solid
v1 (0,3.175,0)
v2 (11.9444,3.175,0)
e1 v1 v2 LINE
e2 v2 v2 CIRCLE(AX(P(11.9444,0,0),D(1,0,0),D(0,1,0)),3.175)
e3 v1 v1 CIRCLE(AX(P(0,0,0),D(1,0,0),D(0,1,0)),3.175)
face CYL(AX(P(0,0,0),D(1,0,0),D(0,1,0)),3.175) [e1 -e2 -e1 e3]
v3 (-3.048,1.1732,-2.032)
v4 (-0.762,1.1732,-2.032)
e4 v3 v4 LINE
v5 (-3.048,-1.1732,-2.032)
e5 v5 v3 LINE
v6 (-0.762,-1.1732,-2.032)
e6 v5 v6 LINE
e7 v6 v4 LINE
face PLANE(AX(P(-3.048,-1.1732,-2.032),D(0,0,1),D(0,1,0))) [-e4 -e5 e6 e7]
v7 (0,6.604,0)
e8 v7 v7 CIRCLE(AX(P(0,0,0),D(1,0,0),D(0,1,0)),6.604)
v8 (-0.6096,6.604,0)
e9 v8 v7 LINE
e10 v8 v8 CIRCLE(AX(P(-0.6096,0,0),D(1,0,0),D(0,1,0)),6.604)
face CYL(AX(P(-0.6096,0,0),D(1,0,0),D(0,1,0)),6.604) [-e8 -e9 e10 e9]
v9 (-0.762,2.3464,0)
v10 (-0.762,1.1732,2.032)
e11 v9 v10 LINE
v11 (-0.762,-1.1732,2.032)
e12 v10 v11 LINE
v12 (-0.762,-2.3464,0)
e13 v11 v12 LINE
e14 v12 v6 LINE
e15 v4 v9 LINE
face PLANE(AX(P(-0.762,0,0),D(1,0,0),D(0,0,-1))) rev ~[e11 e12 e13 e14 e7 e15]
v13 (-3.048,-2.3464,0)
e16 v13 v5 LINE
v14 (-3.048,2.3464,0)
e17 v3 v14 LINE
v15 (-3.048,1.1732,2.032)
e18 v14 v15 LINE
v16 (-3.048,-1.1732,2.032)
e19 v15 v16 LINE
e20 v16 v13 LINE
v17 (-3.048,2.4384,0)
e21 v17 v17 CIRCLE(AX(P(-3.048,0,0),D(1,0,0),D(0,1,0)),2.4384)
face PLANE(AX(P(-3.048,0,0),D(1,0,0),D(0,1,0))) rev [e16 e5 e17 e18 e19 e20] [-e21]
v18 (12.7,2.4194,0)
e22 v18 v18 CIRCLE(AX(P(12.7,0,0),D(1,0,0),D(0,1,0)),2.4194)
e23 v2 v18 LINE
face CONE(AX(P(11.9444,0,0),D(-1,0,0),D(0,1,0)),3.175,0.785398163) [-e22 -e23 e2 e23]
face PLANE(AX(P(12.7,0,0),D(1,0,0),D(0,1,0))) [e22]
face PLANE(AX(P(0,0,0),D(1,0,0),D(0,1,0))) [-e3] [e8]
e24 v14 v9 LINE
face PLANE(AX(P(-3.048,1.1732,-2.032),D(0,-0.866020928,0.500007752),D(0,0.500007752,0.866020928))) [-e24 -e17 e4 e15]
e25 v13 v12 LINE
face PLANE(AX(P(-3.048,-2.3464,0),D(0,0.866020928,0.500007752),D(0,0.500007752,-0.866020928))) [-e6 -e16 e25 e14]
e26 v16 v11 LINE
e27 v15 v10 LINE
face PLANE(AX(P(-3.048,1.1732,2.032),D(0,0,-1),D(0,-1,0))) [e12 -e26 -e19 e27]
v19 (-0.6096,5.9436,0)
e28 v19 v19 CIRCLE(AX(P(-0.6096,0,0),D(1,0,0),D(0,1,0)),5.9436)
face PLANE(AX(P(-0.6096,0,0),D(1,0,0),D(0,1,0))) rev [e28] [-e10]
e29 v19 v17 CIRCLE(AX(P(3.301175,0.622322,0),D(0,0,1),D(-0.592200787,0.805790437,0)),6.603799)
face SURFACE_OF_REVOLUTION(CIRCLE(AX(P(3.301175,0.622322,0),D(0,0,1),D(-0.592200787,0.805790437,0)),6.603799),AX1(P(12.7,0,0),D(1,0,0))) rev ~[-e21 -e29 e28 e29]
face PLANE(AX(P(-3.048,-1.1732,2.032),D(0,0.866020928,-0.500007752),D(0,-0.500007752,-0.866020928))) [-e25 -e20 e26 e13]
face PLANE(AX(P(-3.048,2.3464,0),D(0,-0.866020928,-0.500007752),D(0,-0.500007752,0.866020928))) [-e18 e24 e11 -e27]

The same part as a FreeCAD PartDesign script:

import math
import FreeCAD as App
import Part
import Sketcher
from FreeCAD import Vector
Q = App.Units.Quantity

doc = App.newDocument("Part")
body = doc.addObject("PartDesign::Body", "Body")

# Sketch on XY plane
sketch1 = body.newObject("Sketcher::SketchObject", "Sketch")
sketch1.AttachmentSupport = (doc.getObject("XY_Plane"), [""])
sketch1.MapMode = "FlatFace"
sketch1.addGeometry([
    Part.LineSegment(Vector(-3, 0, 0), Vector(12.7, 0, 0)),  # 0
    Part.LineSegment(Vector(12.7, 0, 0), Vector(12.7, 2.4, 0)),  # 1
    Part.LineSegment(Vector(12.7, 2.4, 0), Vector(11.9, 3.2, 0)),  # 2
    Part.LineSegment(Vector(11.9, 3.2, 0), Vector(0, 3.2, 0)),  # 3
    Part.LineSegment(Vector(0, 3.2, 0), Vector(0, 6.6, 0)),  # 4
    Part.LineSegment(Vector(0, 6.6, 0), Vector(-0.6, 6.6, 0)),  # 5
    Part.LineSegment(Vector(-0.6, 6.6, 0), Vector(-0.6, 5.9, 0)),  # 6
    Part.ArcOfCircle(Part.Circle(Vector(3.3, 0.6, 0), Vector(0, 0, 1), 6.6), math.radians(126), math.radians(164)),  # 7
    Part.LineSegment(Vector(-3, 2.4, 0), Vector(-3, 0, 0)),  # 8
], False)
sketch1.addConstraint([
    Sketcher.Constraint("Coincident", 0, 2, 1, 1),
    Sketcher.Constraint("Coincident", 1, 2, 2, 1),
    Sketcher.Constraint("Coincident", 2, 2, 3, 1),
    Sketcher.Constraint("Coincident", 3, 2, 4, 1),
    Sketcher.Constraint("Coincident", 4, 2, 5, 1),
    Sketcher.Constraint("Coincident", 5, 2, 6, 1),
    Sketcher.Constraint("Coincident", 6, 2, 7, 1),
    Sketcher.Constraint("Coincident", 7, 2, 8, 1),
    Sketcher.Constraint("Coincident", 8, 2, 0, 1),
    Sketcher.Constraint("Horizontal", 0),
    Sketcher.Constraint("Vertical", 1),
    Sketcher.Constraint("Horizontal", 3),
    Sketcher.Constraint("Vertical", 4),
    Sketcher.Constraint("Horizontal", 5),
    Sketcher.Constraint("Vertical", 6),
    Sketcher.Constraint("Vertical", 8),
    Sketcher.Constraint("PointOnObject", 0, 2, -1),
    Sketcher.Constraint("PointOnObject", 3, 2, -2),
    Sketcher.Constraint("Radius", 7, Q("0.26 in")),
    Sketcher.Constraint("Angle", 2, Q("135 deg")),
    Sketcher.Constraint("DistanceX", 0, 1, 0, 2, Q("0.62 in")),
    Sketcher.Constraint("DistanceX", -1, 1, 0, 2, Q("0.5 in")),
    Sketcher.Constraint("DistanceX", 5, 2, 5, 1, Q("0.024 in")),
    Sketcher.Constraint("DistanceY", 4, 1, 4, 2, Q("0.135 in")),
    Sketcher.Constraint("DistanceY", 6, 2, 6, 1, Q("0.026 in")),
    Sketcher.Constraint("DistanceY", 8, 2, 8, 1, Q("0.096 in")),
    Sketcher.Constraint("DistanceY", -1, 1, 4, 2, Q("0.26 in")),
    Sketcher.Constraint("DistanceX", 3, 2, 3, 1, Q("11.9444 mm")),
])
revolution = body.newObject("PartDesign::Revolution", "Revolution")
revolution.Profile = sketch1
revolution.ReferenceAxis = (sketch1, ["H_Axis"])
revolution.Angle = 360

# Sketch on YZ plane
sketch2 = body.newObject("Sketcher::SketchObject", "Sketch001")
sketch2.AttachmentSupport = (doc.getObject("YZ_Plane"), [""])
sketch2.MapMode = "FlatFace"
sketch2.AttachmentOffset = App.Placement(Vector(0, 0, -0.12 * 25.4), App.Rotation())
sketch2.addGeometry([
    Part.LineSegment(Vector(1.2, 2, 0), Vector(-1.2, 2, 0)),  # 0
    Part.LineSegment(Vector(-1.2, 2, 0), Vector(-2.3, 0, 0)),  # 1
    Part.LineSegment(Vector(-2.3, 0, 0), Vector(-1.2, -2, 0)),  # 2
    Part.LineSegment(Vector(-1.2, -2, 0), Vector(1.2, -2, 0)),  # 3
    Part.LineSegment(Vector(1.2, -2, 0), Vector(2.3, 0, 0)),  # 4
    Part.LineSegment(Vector(2.3, 0, 0), Vector(1.2, 2, 0)),  # 5
], False)
sketch2.addConstraint([
    Sketcher.Constraint("Coincident", 0, 2, 1, 1),
    Sketcher.Constraint("Coincident", 1, 2, 2, 1),
    Sketcher.Constraint("Coincident", 2, 2, 3, 1),
    Sketcher.Constraint("Coincident", 3, 2, 4, 1),
    Sketcher.Constraint("Coincident", 4, 2, 5, 1),
    Sketcher.Constraint("Coincident", 5, 2, 0, 1),
    Sketcher.Constraint("Horizontal", 0),
    Sketcher.Constraint("Horizontal", 3),
    Sketcher.Constraint("Symmetric", 0, 2, 3, 2, -1, 1),
    Sketcher.Constraint("Symmetric", 1, 2, 4, 2, -1, 1),
    Sketcher.Constraint("PointOnObject", 1, 2, -1),
    Sketcher.Constraint("Parallel", 2, 5),
    Sketcher.Constraint("Vertical", 0, 2, 2, 2),
    Sketcher.Constraint("Angle", 1, Q("-120.0005 deg")),
    Sketcher.Constraint("DistanceY", -1, 1, 0, 2, Q("0.08 in")),
    Sketcher.Constraint("DistanceX", 0, 2, 0, 1, Q("2.3464 mm")),
])
pocket1 = body.newObject("PartDesign::Pocket", "Pocket")
pocket1.Profile = sketch2
pocket1.Length = Q("0.09 in")
pocket1.Reversed = True

doc.recompute()
